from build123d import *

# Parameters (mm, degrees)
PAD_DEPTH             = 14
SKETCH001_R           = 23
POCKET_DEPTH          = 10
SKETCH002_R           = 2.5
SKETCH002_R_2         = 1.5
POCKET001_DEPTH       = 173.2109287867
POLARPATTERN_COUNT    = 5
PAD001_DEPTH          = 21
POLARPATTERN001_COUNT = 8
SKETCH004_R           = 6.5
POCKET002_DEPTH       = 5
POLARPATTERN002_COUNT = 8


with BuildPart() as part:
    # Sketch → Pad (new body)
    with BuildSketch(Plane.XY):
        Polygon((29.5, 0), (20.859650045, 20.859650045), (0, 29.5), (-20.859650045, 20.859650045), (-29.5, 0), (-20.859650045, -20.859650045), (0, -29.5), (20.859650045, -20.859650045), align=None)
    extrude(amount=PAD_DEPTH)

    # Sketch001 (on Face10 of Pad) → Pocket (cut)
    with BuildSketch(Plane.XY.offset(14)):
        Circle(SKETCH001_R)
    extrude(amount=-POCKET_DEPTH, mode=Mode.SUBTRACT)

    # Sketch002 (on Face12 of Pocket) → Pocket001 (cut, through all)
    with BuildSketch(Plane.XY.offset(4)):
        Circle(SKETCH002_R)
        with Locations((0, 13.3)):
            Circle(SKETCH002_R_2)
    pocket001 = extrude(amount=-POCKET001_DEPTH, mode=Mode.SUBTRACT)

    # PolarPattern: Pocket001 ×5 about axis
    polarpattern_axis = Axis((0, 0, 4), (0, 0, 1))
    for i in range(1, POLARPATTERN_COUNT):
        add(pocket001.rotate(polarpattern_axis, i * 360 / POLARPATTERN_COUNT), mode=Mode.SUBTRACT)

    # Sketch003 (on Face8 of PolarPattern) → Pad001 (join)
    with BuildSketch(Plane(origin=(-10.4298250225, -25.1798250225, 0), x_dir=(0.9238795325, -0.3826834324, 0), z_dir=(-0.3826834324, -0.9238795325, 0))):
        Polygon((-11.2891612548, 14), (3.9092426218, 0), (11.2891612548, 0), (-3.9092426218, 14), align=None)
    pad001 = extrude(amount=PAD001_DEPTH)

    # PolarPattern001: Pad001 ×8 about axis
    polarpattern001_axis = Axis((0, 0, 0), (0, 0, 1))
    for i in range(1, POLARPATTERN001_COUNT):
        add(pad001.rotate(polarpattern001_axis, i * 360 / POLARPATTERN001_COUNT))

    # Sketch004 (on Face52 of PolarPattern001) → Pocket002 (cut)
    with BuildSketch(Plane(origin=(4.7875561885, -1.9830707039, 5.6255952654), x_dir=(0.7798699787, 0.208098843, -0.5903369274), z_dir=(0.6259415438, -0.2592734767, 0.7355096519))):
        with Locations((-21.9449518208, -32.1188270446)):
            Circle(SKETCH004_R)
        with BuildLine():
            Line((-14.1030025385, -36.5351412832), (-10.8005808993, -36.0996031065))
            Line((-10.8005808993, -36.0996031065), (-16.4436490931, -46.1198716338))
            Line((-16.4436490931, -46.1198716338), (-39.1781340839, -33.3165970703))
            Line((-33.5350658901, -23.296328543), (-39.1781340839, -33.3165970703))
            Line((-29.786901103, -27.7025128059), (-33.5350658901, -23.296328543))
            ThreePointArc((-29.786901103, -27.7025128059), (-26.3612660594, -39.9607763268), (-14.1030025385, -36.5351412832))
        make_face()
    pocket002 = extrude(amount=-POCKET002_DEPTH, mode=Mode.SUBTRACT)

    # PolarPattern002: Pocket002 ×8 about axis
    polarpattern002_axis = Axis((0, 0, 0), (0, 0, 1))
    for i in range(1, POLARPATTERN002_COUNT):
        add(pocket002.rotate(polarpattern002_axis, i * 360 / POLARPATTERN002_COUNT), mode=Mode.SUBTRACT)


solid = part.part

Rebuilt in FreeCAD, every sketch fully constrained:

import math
import FreeCAD as App
import Part
import Sketcher

V = App.Vector
Q = App.Units.Quantity


def add_polygon(sketch, points):
    """Adds a closed chain of lines whose ends are joined by coincident constraints."""
    first, n = sketch.GeometryCount, len(points)
    for a, b in zip(points, points[1:] + points[:1]):
        sketch.addGeometry(Part.LineSegment(App.Vector(*a, 0), App.Vector(*b, 0)), False)
    for i in range(n):
        sketch.addConstraint(Sketcher.Constraint("Coincident", first + i, 2, first + (i + 1) % n, 1))

doc = App.newDocument("Part")
body = doc.addObject("PartDesign::Body", "Body")

# Sketch on XY plane
sketch1 = body.newObject("Sketcher::SketchObject", "Sketch")
sketch1.AttachmentSupport = (doc.getObject("XY_Plane"), [""])
sketch1.MapMode = "FlatFace"
add_polygon(sketch1, [(30, 0), (21, 21), (0, 30), (-21, 21), (-30, 0), (-21, -21), (0, -30), (21, -21)])  # lines 0-7
sketch1.addConstraint([
    Sketcher.Constraint("Symmetric", 0, 2, 4, 2, -1, 1),
    Sketcher.Constraint("Symmetric", 1, 2, 5, 2, -1, 1),
    Sketcher.Constraint("Symmetric", 2, 2, 6, 2, -1, 1),
    Sketcher.Constraint("Symmetric", 3, 2, 7, 2, -1, 1),
    Sketcher.Constraint("Symmetric", 0, 2, 2, 2, -2),
    Sketcher.Constraint("PointOnObject", 1, 2, -2),
    Sketcher.Constraint("PointOnObject", 3, 2, -1),
    Sketcher.Constraint("Perpendicular", 0, 2),
    Sketcher.Constraint("Equal", 0, 1),
    Sketcher.Constraint("Angle", 0, Q("112.5 deg")),
    Sketcher.Constraint("DistanceY", 5, 2, 1, 2, 59.0),
])
pad1 = body.newObject("PartDesign::Pad", "Pad")
pad1.Profile = sketch1
pad1.Length = 14

# Sketch on XY plane
sketch2 = body.newObject("Sketcher::SketchObject", "Sketch001")
sketch2.AttachmentSupport = (doc.getObject("XY_Plane"), [""])
sketch2.MapMode = "FlatFace"
sketch2.AttachmentOffset = App.Placement(V(0, 0, 14), App.Rotation())
sketch2.addGeometry(Part.Circle(V(0, 0, 0), V(0, 0, 1), 23), False)
sketch2.addConstraint([
    Sketcher.Constraint("Coincident", 0, 3, -1, 1),
    Sketcher.Constraint("Diameter", 0, 46.0),
])
pocket1 = body.newObject("PartDesign::Pocket", "Pocket")
pocket1.Profile = sketch2
pocket1.Length = 10

# Sketch on XY plane
sketch3 = body.newObject("Sketcher::SketchObject", "Sketch002")
sketch3.AttachmentSupport = (doc.getObject("XY_Plane"), [""])
sketch3.MapMode = "FlatFace"
sketch3.AttachmentOffset = App.Placement(V(0, 0, 4), App.Rotation())
sketch3.addGeometry([
    Part.Circle(V(0, 0, 0), V(0, 0, 1), 2.5),
    Part.Circle(V(0, 13.3, 0), V(0, 0, 1), 1.5),
], False)
sketch3.addConstraint([
    Sketcher.Constraint("Coincident", 0, 3, -1, 1),
    Sketcher.Constraint("PointOnObject", 1, 3, -2),
    Sketcher.Constraint("Diameter", 0, 5.0),
    Sketcher.Constraint("Diameter", 1, 3.0),
    Sketcher.Constraint("DistanceY", -1, 1, 1, 3, 13.3),
])
pocket2 = body.newObject("PartDesign::Pocket", "Pocket001")
pocket2.Profile = sketch3
pocket2.Type = "ThroughAll"
doc.recompute()

polarpattern = body.newObject("PartDesign::PolarPattern", "PolarPattern")
polarpattern.Originals = [pocket2]
polarpattern.Axis = (doc.getObject("Z_Axis"), [""])
polarpattern.Angle = 360
polarpattern.Occurrences = 5
body.Tip = polarpattern

# Sketch on an angled plane
sketch4 = body.newObject("Sketcher::SketchObject", "Sketch003")
sketch4.Placement = App.Placement(V(-10.429825, -25.179825, 0), App.Rotation(V(0.923879532, -0.382683432, 0), V(0, 0, 0.999999999), V(-0.382683432, -0.923879532, 0), "ZXY"))
add_polygon(sketch4, [(-11, 14), (4, 0), (11, 0), (-4, 14)])  # lines 0-3
sketch4.addConstraint([
    Sketcher.Constraint("Horizontal", 1),
    Sketcher.Constraint("Horizontal", 3),
    Sketcher.Constraint("PointOnObject", 0, 2, -1),
    Sketcher.Constraint("Parallel", 0, 2),
    Sketcher.Constraint("DistanceY", -1, 1, 2, 2, 14.0),
    Sketcher.Constraint("DistanceX", 1, 1, 1, 2, 7.379919),
    Sketcher.Constraint("DistanceX", -1, 1, 1, 2, 11.289161),
    Sketcher.Constraint("DistanceX", 3, 2, -1, 1, 11.289161),
])
pad2 = body.newObject("PartDesign::Pad", "Pad001")
pad2.Profile = sketch4
pad2.Length = 21
doc.recompute()

polarpattern2 = body.newObject("PartDesign::PolarPattern", "PolarPattern001")
polarpattern2.Originals = [pad2]
polarpattern2.Axis = (doc.getObject("Z_Axis"), [""])
polarpattern2.Angle = 360
polarpattern2.Occurrences = 8
body.Tip = polarpattern2

# Sketch on an angled plane
sketch5 = body.newObject("Sketcher::SketchObject", "Sketch004")
sketch5.Placement = App.Placement(V(4.787556, -1.983071, 5.625595), App.Rotation(V(0.779869979, 0.208098843, -0.590336927), V(0, 0.943118304, 0.332457312), V(0.625941544, -0.259273477, 0.735509652), "ZXY"))
sketch5.addGeometry([
    Part.Circle(V(-21.9, -32.1, 0), V(0, 0, 1), 6.5),  # 0
    Part.LineSegment(V(-10.8, -36.1, 0), V(-14.1, -36.5, 0)),  # 1
    Part.ArcOfCircle(Part.Circle(V(-21.9, -32.1, 0), V(0, 0, 1), 9), math.radians(151), math.radians(331)),  # 2
    Part.LineSegment(V(-29.8, -27.7, 0), V(-33.5, -23.3, 0)),  # 3
    Part.LineSegment(V(-33.5, -23.3, 0), V(-39.2, -33.3, 0)),  # 4
    Part.LineSegment(V(-39.2, -33.3, 0), V(-16.4, -46.1, 0)),  # 5
    Part.LineSegment(V(-16.4, -46.1, 0), V(-10.8, -36.1, 0)),  # 6
], False)
sketch5.addConstraint([
    Sketcher.Constraint("Coincident", 1, 2, 2, 2),
    Sketcher.Constraint("Coincident", 2, 1, 3, 1),
    Sketcher.Constraint("Coincident", 3, 2, 4, 1),
    Sketcher.Constraint("Coincident", 4, 2, 5, 1),
    Sketcher.Constraint("Coincident", 5, 2, 6, 1),
    Sketcher.Constraint("Coincident", 6, 2, 1, 1),
    Sketcher.Constraint("Coincident", 2, 3, 0, 3),
    Sketcher.Constraint("Perpendicular", 4, 5),
    Sketcher.Constraint("Perpendicular", 5, 6),
    Sketcher.Constraint("Equal", 4, 6),
    Sketcher.Constraint("Diameter", 0, 13.0),
    Sketcher.Constraint("Radius", 2, 9.0),
    Sketcher.Constraint("Distance", 4, 11.5),
    Sketcher.Constraint("DistanceX", 2, 1, -1, 1, 29.786901),
    Sketcher.Constraint("DistanceX", 2, 1, 1, 2, 15.683899),
    Sketcher.Constraint("DistanceY", 0, 3, 3, 2, 8.822499),
    Sketcher.Constraint("Distance", 1, 3.331018),
    Sketcher.Constraint("Distance", 3, 5.784738),
    Sketcher.Constraint("DistanceX", 0, 3, -1, 1, 21.944952),
    Sketcher.Constraint("DistanceY", 1, 2, -1, 1, 36.535141),
    Sketcher.Constraint("DistanceX", 5, 2, -1, 1, 16.443649),
])
pocket3 = body.newObject("PartDesign::Pocket", "Pocket002")
pocket3.Profile = sketch5
pocket3.Length = 5
doc.recompute()

polarpattern3 = body.newObject("PartDesign::PolarPattern", "PolarPattern002")
polarpattern3.Originals = [pocket3]
polarpattern3.Axis = (doc.getObject("Z_Axis"), [""])
polarpattern3.Angle = 360
polarpattern3.Occurrences = 8
body.Tip = polarpattern3

doc.recompute()
